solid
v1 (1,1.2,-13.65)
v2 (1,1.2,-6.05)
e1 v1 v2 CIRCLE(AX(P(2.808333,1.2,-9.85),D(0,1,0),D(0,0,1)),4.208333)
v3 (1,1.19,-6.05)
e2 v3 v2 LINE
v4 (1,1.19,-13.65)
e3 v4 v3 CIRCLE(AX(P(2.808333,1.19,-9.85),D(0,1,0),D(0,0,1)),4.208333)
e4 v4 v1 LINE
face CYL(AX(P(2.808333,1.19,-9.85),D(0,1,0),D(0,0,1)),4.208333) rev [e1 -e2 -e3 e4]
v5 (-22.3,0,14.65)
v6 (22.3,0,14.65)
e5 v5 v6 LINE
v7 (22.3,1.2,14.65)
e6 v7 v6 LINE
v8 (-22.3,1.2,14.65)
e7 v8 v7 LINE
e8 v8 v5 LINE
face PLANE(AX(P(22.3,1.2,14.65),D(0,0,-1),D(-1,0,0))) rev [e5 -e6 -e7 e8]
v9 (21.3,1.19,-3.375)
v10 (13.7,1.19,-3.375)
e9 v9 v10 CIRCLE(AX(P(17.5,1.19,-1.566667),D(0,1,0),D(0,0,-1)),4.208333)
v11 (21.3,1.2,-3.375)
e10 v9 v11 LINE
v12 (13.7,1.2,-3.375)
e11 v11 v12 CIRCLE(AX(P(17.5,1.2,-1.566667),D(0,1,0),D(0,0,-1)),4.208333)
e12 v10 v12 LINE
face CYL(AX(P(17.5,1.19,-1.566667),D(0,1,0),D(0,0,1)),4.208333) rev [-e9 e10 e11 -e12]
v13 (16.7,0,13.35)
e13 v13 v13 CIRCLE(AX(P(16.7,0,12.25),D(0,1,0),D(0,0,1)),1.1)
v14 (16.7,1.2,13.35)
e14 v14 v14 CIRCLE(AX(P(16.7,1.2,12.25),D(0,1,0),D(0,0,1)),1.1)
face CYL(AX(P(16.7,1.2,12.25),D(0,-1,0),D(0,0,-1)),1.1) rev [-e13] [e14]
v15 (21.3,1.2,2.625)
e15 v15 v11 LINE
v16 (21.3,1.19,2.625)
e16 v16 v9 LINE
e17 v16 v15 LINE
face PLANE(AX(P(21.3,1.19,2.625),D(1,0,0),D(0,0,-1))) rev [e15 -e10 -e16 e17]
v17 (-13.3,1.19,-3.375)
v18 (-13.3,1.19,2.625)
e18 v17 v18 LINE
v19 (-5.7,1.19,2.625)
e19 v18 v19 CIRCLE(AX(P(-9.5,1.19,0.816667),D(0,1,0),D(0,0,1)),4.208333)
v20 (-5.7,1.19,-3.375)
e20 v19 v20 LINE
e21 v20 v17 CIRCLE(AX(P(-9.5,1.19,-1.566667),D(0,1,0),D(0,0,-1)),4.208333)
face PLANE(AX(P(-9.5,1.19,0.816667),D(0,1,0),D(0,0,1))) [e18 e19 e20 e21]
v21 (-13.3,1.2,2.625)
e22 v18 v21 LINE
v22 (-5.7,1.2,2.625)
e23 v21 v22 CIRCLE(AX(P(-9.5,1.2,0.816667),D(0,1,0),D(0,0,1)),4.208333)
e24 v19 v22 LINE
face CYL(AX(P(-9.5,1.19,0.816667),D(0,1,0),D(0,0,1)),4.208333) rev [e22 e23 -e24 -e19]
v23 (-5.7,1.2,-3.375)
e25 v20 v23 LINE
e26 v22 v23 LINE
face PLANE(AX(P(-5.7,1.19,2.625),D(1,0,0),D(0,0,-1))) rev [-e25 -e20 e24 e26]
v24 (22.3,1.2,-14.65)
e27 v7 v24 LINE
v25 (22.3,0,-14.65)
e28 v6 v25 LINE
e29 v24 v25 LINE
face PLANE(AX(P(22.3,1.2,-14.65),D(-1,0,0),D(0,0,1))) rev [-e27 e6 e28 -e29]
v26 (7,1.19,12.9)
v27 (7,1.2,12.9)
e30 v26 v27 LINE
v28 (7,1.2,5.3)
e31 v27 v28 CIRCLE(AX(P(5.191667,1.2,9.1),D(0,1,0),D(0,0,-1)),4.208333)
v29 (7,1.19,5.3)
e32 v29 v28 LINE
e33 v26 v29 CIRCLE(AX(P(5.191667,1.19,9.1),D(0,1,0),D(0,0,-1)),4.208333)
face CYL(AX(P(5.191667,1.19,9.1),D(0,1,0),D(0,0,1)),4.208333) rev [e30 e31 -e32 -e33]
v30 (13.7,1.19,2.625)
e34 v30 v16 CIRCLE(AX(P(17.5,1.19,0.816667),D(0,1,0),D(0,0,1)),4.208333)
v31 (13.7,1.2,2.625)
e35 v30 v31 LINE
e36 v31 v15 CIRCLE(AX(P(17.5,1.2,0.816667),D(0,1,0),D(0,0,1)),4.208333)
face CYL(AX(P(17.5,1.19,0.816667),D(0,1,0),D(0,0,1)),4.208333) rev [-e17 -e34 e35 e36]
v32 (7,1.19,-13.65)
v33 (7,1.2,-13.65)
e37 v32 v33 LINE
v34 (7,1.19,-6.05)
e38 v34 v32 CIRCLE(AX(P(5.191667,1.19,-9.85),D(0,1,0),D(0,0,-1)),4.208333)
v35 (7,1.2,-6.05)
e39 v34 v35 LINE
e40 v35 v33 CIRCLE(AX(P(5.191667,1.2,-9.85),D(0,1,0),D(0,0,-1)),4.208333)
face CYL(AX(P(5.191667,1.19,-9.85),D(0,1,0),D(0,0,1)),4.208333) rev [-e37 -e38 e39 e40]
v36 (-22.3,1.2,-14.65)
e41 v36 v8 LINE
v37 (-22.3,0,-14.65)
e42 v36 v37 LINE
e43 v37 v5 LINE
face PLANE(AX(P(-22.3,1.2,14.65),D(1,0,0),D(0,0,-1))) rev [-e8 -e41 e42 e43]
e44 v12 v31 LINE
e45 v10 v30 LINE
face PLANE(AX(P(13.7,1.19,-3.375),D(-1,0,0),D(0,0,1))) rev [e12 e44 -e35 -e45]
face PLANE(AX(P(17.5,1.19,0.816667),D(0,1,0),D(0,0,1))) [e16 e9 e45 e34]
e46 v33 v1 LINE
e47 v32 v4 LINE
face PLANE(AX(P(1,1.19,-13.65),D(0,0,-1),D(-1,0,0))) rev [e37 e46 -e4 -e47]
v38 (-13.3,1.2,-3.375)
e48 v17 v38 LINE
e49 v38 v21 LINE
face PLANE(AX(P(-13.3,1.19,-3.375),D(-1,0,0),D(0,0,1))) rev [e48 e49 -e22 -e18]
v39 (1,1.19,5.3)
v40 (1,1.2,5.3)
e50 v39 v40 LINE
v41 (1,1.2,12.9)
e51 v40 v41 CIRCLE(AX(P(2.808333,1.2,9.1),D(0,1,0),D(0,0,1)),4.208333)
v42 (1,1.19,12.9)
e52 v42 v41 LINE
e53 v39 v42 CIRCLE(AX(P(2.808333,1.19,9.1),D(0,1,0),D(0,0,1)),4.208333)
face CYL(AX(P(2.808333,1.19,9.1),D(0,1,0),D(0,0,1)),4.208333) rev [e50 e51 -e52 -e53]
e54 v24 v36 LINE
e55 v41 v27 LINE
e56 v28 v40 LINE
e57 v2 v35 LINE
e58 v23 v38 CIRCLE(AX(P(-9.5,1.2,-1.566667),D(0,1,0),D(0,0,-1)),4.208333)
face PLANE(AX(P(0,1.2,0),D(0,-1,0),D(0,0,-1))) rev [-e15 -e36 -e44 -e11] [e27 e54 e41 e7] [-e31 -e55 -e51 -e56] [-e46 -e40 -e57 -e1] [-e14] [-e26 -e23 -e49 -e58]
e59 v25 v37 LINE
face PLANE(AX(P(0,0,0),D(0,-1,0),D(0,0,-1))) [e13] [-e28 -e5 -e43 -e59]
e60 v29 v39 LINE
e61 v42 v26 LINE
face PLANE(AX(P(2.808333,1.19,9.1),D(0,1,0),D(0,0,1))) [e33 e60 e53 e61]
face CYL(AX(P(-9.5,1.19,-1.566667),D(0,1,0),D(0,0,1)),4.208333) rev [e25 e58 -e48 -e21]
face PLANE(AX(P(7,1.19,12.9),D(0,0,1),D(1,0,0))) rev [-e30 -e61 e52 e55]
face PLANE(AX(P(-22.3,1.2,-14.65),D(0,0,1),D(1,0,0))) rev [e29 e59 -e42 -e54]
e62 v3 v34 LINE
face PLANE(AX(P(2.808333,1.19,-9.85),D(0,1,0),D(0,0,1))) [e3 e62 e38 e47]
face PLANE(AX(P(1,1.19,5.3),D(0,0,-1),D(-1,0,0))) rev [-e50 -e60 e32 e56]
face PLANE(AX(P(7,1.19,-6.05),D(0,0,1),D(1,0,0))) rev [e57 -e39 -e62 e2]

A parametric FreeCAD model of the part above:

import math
import FreeCAD as App
import Part
import Sketcher

V = App.Vector


def add_polygon(sketch, points):
    """Adds a closed chain of lines whose ends are joined by coincident constraints."""
    first, n = sketch.GeometryCount, len(points)
    for a, b in zip(points, points[1:] + points[:1]):
        sketch.addGeometry(Part.LineSegment(App.Vector(*a, 0), App.Vector(*b, 0)), False)
    for i in range(n):
        sketch.addConstraint(Sketcher.Constraint("Coincident", first + i, 2, first + (i + 1) % n, 1))

doc = App.newDocument("Part")
body = doc.addObject("PartDesign::Body", "Body")

sketch1 = body.newObject("Sketcher::SketchObject", "Sketch")
sketch1.AttachmentSupport = (doc.getObject("XZ_Plane"), [""])
sketch1.MapMode = "FlatFace"
add_polygon(sketch1, [(-22.3, -14.7), (-22.3, 14.7), (22.3, 14.7), (22.3, -14.7)])
sketch1.addGeometry(Part.Circle(V(16.7, 12.2, 0), V(0, 0, 1), 1.1), False)
sketch1.addConstraint([
    Sketcher.Constraint("Vertical", 0),
    Sketcher.Constraint("Horizontal", 1),
    Sketcher.Constraint("Vertical", 2),
    Sketcher.Constraint("Horizontal", 3),
    Sketcher.Constraint("Symmetric", 0, 2, 2, 2, -1, 1),
    Sketcher.Constraint("Diameter", 4, 2.2),
    Sketcher.Constraint("DistanceX", 1, 1, 1, 2, 44.6),
    Sketcher.Constraint("DistanceY", 0, 1, 0, 2, 29.3),
    Sketcher.Constraint("DistanceX", 0, 2, 4, 3, 39.0),
    Sketcher.Constraint("DistanceY", 4, 3, 0, 2, 2.4),
])
pad1 = body.newObject("PartDesign::Pad", "Pad")
pad1.Profile = sketch1
pad1.Length = 1.2
pad1.Reversed = True

sketch2 = body.newObject("Sketcher::SketchObject", "Sketch001")
sketch2.AttachmentSupport = (doc.getObject("XZ_Plane"), [""])
sketch2.MapMode = "FlatFace"
sketch2.AttachmentOffset = App.Placement(V(0, 0, -1.2), App.Rotation())
sketch2.addGeometry([
    Part.LineSegment(V(7, -13.7, 0), V(1, -13.7, 0)),
    Part.ArcOfCircle(Part.Circle(V(2.8, -9.8, 0), V(0, 0, 1), 4.2), math.radians(115), math.radians(245)),
    Part.LineSegment(V(1, -6, 0), V(7, -6, 0)),
    Part.ArcOfCircle(Part.Circle(V(5.2, -9.8, 0), V(0, 0, 1), 4.2), math.radians(-65), math.radians(65)),
    Part.LineSegment(V(7, 5.3, 0), V(1, 5.3, 0)),
    Part.ArcOfCircle(Part.Circle(V(2.8, 9.1, 0), V(0, 0, 1), 4.2), math.radians(115), math.radians(245)),
    Part.LineSegment(V(1, 12.9, 0), V(7, 12.9, 0)),
    Part.ArcOfCircle(Part.Circle(V(5.2, 9.1, 0), V(0, 0, 1), 4.2), math.radians(-65), math.radians(65)),
    Part.LineSegment(V(-13.3, -3.4, 0), V(-13.3, 2.6, 0)),
    Part.ArcOfCircle(Part.Circle(V(-9.5, 0.8, 0), V(0, 0, 1), 4.2), math.radians(25), math.radians(155)),
    Part.LineSegment(V(-5.7, 2.6, 0), V(-5.7, -3.4, 0)),
    Part.ArcOfCircle(Part.Circle(V(-9.5, -1.6, 0), V(0, 0, 1), 4.2), math.radians(-155), math.radians(-25)),
    Part.LineSegment(V(13.7, -3.4, 0), V(13.7, 2.6, 0)),
    Part.ArcOfCircle(Part.Circle(V(17.5, 0.8, 0), V(0, 0, 1), 4.2), math.radians(25), math.radians(155)),
    Part.LineSegment(V(21.3, 2.6, 0), V(21.3, -3.4, 0)),
    Part.ArcOfCircle(Part.Circle(V(17.5, -1.6, 0), V(0, 0, 1), 4.2), math.radians(-155), math.radians(-25)),
], False)
sketch2.addConstraint([
    Sketcher.Constraint("Coincident", 0, 2, 1, 2),
    Sketcher.Constraint("Coincident", 1, 1, 2, 1),
    Sketcher.Constraint("Coincident", 2, 2, 3, 2),
    Sketcher.Constraint("Coincident", 3, 1, 0, 1),
    Sketcher.Constraint("Coincident", 4, 2, 5, 2),
    Sketcher.Constraint("Coincident", 5, 1, 6, 1),
    Sketcher.Constraint("Coincident", 6, 2, 7, 2),
    Sketcher.Constraint("Coincident", 7, 1, 4, 1),
    Sketcher.Constraint("Coincident", 8, 2, 9, 2),
    Sketcher.Constraint("Coincident", 9, 1, 10, 1),
    Sketcher.Constraint("Coincident", 10, 2, 11, 2),
    Sketcher.Constraint("Coincident", 11, 1, 8, 1),
    Sketcher.Constraint("Coincident", 12, 2, 13, 2),
    Sketcher.Constraint("Coincident", 13, 1, 14, 1),
    Sketcher.Constraint("Coincident", 14, 2, 15, 2),
    Sketcher.Constraint("Coincident", 15, 1, 12, 1),
    Sketcher.Constraint("Horizontal", 0),
    Sketcher.Constraint("Horizontal", 2),
    Sketcher.Constraint("Horizontal", 4),
    Sketcher.Constraint("Horizontal", 6),
    Sketcher.Constraint("Vertical", 8),
    Sketcher.Constraint("Vertical", 10),
    Sketcher.Constraint("Vertical", 12),
    Sketcher.Constraint("Vertical", 14),
    Sketcher.Constraint("Equal", 1, 3),
    Sketcher.Constraint("Equal", 3, 5),
    Sketcher.Constraint("Equal", 5, 7),
    Sketcher.Constraint("Equal", 7, 9),
    Sketcher.Constraint("Equal", 9, 11),
    Sketcher.Constraint("Equal", 11, 13),
    Sketcher.Constraint("Equal", 13, 15),
    Sketcher.Constraint("Horizontal", 1, 3, 3, 3),
    Sketcher.Constraint("Horizontal", 5, 3, 7, 3),
    Sketcher.Constraint("Horizontal", 9, 3, 13, 3),
    Sketcher.Constraint("Horizontal", 11, 3, 15, 3),
    Sketcher.Constraint("Horizontal", 8, 2, 9, 1),
    Sketcher.Constraint("Horizontal", 10, 2, 11, 1),
    Sketcher.Constraint("Horizontal", 9, 1, 12, 2),
    Sketcher.Constraint("Horizontal", 12, 2, 13, 1),
    Sketcher.Constraint("Horizontal", 11, 1, 14, 2),
    Sketcher.Constraint("Vertical", 1, 3, 5, 3),
    Sketcher.Constraint("Vertical", 3, 3, 7, 3),
    Sketcher.Constraint("Vertical", 0, 2, 1, 1),
    Sketcher.Constraint("Vertical", 1, 1, 4, 2),
    Sketcher.Constraint("Vertical", 4, 2, 5, 1),
    Sketcher.Constraint("Equal", 6, 8),
    Sketcher.Constraint("DistanceX", 0, 2, 0, 1, 6.0),
    Sketcher.Constraint("DistanceX", -1, 1, 0, 2, 1.0),
    Sketcher.Constraint("DistanceX", 9, 3, 13, 3, 27.0),
    Sketcher.Constraint("DistanceY", -1, 1, 5, 3, 9.1),
    Sketcher.Constraint("DistanceX", 9, 3, -1, 1, 9.5),
    Sketcher.Constraint("DistanceY", -1, 1, 4, 2, 5.3),
    Sketcher.Constraint("DistanceX", 8, 2, -1, 1, 13.3),
    Sketcher.Constraint("DistanceY", 1, 3, -1, 1, 9.85),
    Sketcher.Constraint("DistanceY", -1, 1, 8, 2, 2.625),
    Sketcher.Constraint("Radius", 1, 4.208333),
])
pocket1 = body.newObject("PartDesign::Pocket", "Pocket")
pocket1.Profile = sketch2
pocket1.Length = 0.01
pocket1.Reversed = True

doc.recompute()
